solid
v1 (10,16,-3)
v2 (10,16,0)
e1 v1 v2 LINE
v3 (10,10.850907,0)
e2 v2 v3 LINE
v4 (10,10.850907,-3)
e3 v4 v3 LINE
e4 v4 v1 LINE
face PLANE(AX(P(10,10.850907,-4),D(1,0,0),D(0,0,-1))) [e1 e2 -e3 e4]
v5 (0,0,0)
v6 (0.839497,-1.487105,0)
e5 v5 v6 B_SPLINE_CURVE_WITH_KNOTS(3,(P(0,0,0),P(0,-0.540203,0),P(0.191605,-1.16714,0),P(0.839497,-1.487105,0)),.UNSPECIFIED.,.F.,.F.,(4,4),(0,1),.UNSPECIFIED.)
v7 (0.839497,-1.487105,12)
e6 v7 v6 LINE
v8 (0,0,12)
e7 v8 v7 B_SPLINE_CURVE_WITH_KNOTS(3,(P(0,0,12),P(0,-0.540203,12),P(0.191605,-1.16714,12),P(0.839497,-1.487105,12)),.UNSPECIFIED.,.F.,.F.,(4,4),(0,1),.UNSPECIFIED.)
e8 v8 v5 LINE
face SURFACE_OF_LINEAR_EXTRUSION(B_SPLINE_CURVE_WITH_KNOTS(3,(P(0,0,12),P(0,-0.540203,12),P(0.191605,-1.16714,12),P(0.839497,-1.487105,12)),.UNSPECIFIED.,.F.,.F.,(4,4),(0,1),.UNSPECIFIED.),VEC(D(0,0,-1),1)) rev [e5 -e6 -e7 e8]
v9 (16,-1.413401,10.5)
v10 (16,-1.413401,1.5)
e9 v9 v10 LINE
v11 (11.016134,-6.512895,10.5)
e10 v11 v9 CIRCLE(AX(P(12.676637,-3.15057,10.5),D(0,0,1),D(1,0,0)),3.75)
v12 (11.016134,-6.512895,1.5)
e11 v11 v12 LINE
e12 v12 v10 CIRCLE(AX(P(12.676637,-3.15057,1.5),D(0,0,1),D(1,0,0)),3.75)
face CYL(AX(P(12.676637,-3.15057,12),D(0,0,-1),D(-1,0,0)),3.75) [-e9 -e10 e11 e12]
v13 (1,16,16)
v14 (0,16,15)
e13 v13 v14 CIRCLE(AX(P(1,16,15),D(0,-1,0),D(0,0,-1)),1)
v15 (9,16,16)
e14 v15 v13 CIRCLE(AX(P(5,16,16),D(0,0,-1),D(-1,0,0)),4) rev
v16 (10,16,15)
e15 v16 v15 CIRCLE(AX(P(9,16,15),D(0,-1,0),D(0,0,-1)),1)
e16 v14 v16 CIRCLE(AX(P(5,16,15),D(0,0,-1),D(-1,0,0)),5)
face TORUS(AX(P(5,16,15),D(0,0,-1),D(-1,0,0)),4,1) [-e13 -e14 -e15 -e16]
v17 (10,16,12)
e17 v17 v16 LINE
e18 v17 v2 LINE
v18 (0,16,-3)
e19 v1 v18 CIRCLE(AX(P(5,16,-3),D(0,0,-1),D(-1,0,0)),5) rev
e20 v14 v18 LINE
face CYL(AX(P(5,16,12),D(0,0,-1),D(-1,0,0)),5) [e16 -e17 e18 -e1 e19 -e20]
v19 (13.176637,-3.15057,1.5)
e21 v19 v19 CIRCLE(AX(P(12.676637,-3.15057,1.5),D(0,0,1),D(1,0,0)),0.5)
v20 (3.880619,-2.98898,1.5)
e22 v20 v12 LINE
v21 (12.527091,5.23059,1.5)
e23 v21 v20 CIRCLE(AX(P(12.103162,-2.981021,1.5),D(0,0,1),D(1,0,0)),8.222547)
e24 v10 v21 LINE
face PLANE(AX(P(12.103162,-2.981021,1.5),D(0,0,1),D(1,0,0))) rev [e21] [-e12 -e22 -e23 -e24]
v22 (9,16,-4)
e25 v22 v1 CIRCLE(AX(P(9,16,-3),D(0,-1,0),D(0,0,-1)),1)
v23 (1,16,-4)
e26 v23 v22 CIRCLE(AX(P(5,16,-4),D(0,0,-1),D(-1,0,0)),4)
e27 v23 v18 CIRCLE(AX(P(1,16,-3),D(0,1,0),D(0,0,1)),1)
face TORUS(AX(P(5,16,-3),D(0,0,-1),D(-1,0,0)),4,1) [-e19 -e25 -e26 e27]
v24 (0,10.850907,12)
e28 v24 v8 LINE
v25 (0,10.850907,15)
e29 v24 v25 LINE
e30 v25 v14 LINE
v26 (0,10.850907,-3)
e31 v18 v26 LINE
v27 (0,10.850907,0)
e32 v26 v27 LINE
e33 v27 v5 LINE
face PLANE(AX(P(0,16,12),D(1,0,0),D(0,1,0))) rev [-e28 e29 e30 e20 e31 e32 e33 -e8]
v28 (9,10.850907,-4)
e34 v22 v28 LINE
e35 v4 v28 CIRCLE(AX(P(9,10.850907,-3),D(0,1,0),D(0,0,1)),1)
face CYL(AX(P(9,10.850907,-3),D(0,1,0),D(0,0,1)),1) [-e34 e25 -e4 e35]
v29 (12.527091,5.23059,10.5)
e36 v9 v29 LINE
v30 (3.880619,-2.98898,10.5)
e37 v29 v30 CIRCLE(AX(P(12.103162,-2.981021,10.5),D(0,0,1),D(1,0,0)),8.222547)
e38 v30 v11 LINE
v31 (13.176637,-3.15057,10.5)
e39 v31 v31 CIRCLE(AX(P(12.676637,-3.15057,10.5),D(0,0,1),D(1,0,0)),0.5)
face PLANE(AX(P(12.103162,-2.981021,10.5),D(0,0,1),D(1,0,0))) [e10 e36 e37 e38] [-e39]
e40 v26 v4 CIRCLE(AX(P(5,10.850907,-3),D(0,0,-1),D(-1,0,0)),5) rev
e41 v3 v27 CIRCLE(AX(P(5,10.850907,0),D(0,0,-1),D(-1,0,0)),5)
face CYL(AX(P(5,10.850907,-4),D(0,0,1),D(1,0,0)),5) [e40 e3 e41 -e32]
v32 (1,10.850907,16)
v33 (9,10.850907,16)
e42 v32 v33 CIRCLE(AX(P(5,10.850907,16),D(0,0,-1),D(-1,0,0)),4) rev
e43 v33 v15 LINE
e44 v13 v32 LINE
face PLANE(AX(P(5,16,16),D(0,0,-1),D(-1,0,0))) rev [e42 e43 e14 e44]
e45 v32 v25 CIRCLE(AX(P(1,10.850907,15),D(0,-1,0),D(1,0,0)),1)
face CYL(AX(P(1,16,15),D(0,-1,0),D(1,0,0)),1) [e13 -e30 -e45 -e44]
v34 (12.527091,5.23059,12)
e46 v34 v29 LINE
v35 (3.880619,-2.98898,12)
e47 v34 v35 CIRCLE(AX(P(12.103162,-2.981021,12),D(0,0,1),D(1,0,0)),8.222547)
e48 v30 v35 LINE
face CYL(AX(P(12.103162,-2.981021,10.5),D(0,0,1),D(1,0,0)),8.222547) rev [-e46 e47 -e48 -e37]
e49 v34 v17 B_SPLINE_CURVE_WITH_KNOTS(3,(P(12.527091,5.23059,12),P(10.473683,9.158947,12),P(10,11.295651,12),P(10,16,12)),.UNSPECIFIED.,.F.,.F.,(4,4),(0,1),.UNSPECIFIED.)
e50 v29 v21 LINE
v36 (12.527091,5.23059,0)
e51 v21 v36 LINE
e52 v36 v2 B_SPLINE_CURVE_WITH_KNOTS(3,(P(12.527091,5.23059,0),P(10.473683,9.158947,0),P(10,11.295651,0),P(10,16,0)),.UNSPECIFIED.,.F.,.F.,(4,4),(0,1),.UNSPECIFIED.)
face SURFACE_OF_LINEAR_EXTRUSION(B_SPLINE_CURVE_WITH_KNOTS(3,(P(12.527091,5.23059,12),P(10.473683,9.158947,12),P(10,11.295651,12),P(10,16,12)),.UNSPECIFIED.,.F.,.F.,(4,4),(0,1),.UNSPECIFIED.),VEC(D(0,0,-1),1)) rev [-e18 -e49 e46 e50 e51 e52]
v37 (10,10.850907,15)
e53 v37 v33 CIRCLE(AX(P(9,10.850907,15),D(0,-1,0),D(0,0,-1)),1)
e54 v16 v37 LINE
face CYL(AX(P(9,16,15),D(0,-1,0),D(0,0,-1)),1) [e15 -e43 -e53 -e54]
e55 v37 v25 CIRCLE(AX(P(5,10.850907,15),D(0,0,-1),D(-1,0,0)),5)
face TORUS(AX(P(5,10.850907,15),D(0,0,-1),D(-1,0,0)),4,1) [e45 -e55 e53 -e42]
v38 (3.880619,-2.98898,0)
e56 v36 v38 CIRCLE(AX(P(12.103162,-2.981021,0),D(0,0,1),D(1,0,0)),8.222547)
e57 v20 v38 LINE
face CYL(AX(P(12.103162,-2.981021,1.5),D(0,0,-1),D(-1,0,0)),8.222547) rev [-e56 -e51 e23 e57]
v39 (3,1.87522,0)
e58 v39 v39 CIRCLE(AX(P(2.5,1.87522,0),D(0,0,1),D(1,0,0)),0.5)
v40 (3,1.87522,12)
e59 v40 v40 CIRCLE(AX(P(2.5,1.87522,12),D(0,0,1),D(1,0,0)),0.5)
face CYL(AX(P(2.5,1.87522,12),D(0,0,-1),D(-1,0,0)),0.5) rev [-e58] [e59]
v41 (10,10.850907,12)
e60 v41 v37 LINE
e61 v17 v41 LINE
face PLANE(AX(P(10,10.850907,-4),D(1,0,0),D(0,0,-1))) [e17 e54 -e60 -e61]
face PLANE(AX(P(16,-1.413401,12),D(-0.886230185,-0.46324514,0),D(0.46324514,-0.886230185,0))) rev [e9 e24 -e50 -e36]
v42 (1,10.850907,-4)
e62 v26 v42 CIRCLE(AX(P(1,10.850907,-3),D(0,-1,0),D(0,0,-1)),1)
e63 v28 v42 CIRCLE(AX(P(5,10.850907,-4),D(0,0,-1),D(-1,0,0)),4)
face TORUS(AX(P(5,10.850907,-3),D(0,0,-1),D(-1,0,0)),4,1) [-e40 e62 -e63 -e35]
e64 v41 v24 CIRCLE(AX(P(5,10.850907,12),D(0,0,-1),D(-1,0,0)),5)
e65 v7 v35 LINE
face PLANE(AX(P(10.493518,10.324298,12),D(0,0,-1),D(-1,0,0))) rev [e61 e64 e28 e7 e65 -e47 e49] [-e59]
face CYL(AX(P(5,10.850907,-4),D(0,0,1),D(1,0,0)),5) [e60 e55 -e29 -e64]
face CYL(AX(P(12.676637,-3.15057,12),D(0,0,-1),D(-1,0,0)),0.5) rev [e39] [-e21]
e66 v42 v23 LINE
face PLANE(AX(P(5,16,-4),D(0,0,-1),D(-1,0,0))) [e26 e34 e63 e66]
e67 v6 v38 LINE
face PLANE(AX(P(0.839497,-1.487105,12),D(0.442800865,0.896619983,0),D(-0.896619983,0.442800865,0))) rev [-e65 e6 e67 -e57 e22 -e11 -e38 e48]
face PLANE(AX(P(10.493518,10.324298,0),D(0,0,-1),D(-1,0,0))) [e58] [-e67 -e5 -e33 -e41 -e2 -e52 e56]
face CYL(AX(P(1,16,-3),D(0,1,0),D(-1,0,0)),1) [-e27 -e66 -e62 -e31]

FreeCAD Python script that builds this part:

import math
import FreeCAD as App
import Part
import Sketcher
from FreeCAD import Vector


def edges_at(feature, points):
    """Names of the edges that pass closest to the given points."""
    edges = feature.Shape.Edges
    near = lambda p: min(range(len(edges)), key=lambda i: edges[i].distToShape(Part.Vertex(*p))[0])
    return sorted({f"Edge{near(p) + 1}" for p in points})

doc = App.newDocument("Part")
params = doc.addObject("Spreadsheet::Sheet", "Params")
for row, (alias, value) in enumerate([
    ("sketch1_diameter", "1 mm"),
    ("sketch1_height", "16 mm"),
    ("sketch1_radius", "3.75 mm"),
    ("pad1_length", "12 mm"),
    ("sketch2_radius", "3.75 mm"),
    ("pocket1_length", "1.5 mm"),
    ("sketch3_radius", "3.75 mm"),
    ("pocket2_length", "1.5 mm"),
    ("sketch4_radius", "5 mm"),
    ("pad2_length", "20 mm"),
    ("fillet_radius", "1 mm"),
], start=1):
    params.set(f"A{row}", alias)
    params.set(f"B{row}", "=" + value)
    params.setAlias(f"B{row}", alias)

body = doc.addObject("PartDesign::Body", "Body")

# Sketch on XY plane
sketch1 = body.newObject("Sketcher::SketchObject", "Sketch")
sketch1.AttachmentSupport = (doc.getObject("XY_Plane"), [""])
sketch1.MapMode = "FlatFace"
sketch1.addGeometry([
    Part.LineSegment(Vector(0.839497, -1.487105, 0), Vector(11.016134, -6.512895, 0)),  # 0
    Part.ArcOfCircle(Part.Circle(Vector(12.676637, -3.15057, 0), Vector(0, 0, 1), 3.75), math.radians(-116.282724), math.radians(27.596709)),  # 1
    Part.LineSegment(Vector(16, -1.413401, 0), Vector(12.527091, 5.23059, 0)),  # 2
    Part.BSplineCurve([Vector(10, 16, 0), Vector(10, 11.295651, 0), Vector(10.473683, 9.158947, 0), Vector(12.527091, 5.23059, 0)], [4, 4], [0, 1], False, 3, [1, 1, 1, 1], False),  # 3
    Part.ArcOfCircle(Part.Circle(Vector(5, 16, 0), Vector(0, 0, 1), 5), math.radians(0), math.radians(180)),  # 4
    Part.LineSegment(Vector(0, 16, 0), Vector(0, 0, 0)),  # 5
    Part.BSplineCurve([Vector(0, 0, 0), Vector(0, -0.540203, 0), Vector(0.191605, -1.16714, 0), Vector(0.839497, -1.487105, 0)], [4, 4], [0, 1], False, 3, [1, 1, 1, 1], False),  # 6
    Part.Circle(Vector(12.676637, -3.15057, 0), Vector(0, 0, 1), 0.5),  # 7
    Part.Circle(Vector(2.5, 1.87522, 0), Vector(0, 0, 1), 0.5),  # 8
], False)
sketch1.addConstraint([
    Sketcher.Constraint("Block", 3),
    Sketcher.Constraint("Block", 6),
    Sketcher.Constraint("Tangent", 0, 2, 1, 1),
    Sketcher.Constraint("Tangent", 1, 2, 2, 1),
    Sketcher.Constraint("Coincident", 2, 2, 3, 2),
    Sketcher.Constraint("Coincident", 3, 1, 4, 1),
    Sketcher.Constraint("Tangent", 4, 2, 5, 1),
    Sketcher.Constraint("Coincident", 5, 2, 6, 1),
    Sketcher.Constraint("Coincident", 6, 2, 0, 1),
    Sketcher.Constraint("Vertical", 5),
    Sketcher.Constraint("Coincident", 7, 3, 1, 3),
    Sketcher.Constraint("Equal", 7, 8),
    Sketcher.Constraint("Diameter", 7, 1.0),
    Sketcher.Constraint("DistanceY", 5, 2, 5, 1, 16.0),
    Sketcher.Constraint("Radius", 1, 3.75),
    Sketcher.Constraint("DistanceX", -1, 1, 1, 2, 16.0),
    Sketcher.Constraint("DistanceX", -1, 1, 8, 3, 2.5),
    Sketcher.Constraint("DistanceY", 1, 2, -1, 1, 1.413401),
    Sketcher.Constraint("DistanceY", -1, 1, 8, 3, 1.87522),
])
sketch1.setExpression("Constraints[12]", "Params.sketch1_diameter")
sketch1.setExpression("Constraints[13]", "Params.sketch1_height")
sketch1.setExpression("Constraints[14]", "Params.sketch1_radius")
pad1 = body.newObject("PartDesign::Pad", "Pad")
pad1.Profile = sketch1
pad1.setExpression("Length", "Params.pad1_length")

# Sketch on XY plane
sketch2 = body.newObject("Sketcher::SketchObject", "Sketch001")
sketch2.AttachmentSupport = (doc.getObject("XY_Plane"), [""])
sketch2.MapMode = "FlatFace"
sketch2.AttachmentOffset = App.Placement(Vector(0, 0, 10.5), App.Rotation())
sketch2.addGeometry([
    Part.LineSegment(Vector(3.9, -3, 0), Vector(11, -6.5, 0)),
    Part.ArcOfCircle(Part.Circle(Vector(12.7, -3.2, 0), Vector(0, 0, 1), 3.8), math.radians(-116), math.radians(28)),
    Part.LineSegment(Vector(16, -1.4, 0), Vector(12.5, 5.2, 0)),
    Part.ArcOfCircle(Part.Circle(Vector(12.1, -3, 0), Vector(0, 0, 1), 8.2), math.radians(87), math.radians(180)),
], False)
sketch2.addConstraint([
    Sketcher.Constraint("Tangent", 0, 2, 1, 1),
    Sketcher.Constraint("Tangent", 1, 2, 2, 1),
    Sketcher.Constraint("Coincident", 2, 2, 3, 1),
    Sketcher.Constraint("Coincident", 3, 2, 0, 1),
    Sketcher.Constraint("Radius", 1, 3.75),
    Sketcher.Constraint("DistanceX", -1, 1, 1, 2, 16.0),
    Sketcher.Constraint("Radius", 3, 8.222547),
    Sketcher.Constraint("DistanceY", 1, 2, -1, 1, 1.413401),
    Sketcher.Constraint("DistanceY", 1, 3, -1, 1, 3.15057),
    Sketcher.Constraint("DistanceX", -1, 1, 3, 3, 12.103162),
    Sketcher.Constraint("DistanceY", 3, 3, -1, 1, 2.981021),
    Sketcher.Constraint("DistanceY", 3, 2, -1, 1, 2.98898),
])
sketch2.setExpression("Constraints[4]", "Params.sketch2_radius")
pocket1 = body.newObject("PartDesign::Pocket", "Pocket")
pocket1.Profile = sketch2
pocket1.setExpression("Length", "Params.pocket1_length")
pocket1.Reversed = True

# Sketch on XY plane
sketch3 = body.newObject("Sketcher::SketchObject", "Sketch002")
sketch3.AttachmentSupport = (doc.getObject("XY_Plane"), [""])
sketch3.MapMode = "FlatFace"
sketch3.addGeometry([
    Part.LineSegment(Vector(3.9, -3, 0), Vector(11, -6.5, 0)),
    Part.ArcOfCircle(Part.Circle(Vector(12.7, -3.2, 0), Vector(0, 0, 1), 3.8), math.radians(-116), math.radians(28)),
    Part.LineSegment(Vector(16, -1.4, 0), Vector(12.5, 5.2, 0)),
    Part.ArcOfCircle(Part.Circle(Vector(12.1, -3, 0), Vector(0, 0, 1), 8.2), math.radians(87), math.radians(180)),
], False)
sketch3.addConstraint([
    Sketcher.Constraint("Tangent", 0, 2, 1, 1),
    Sketcher.Constraint("Tangent", 1, 2, 2, 1),
    Sketcher.Constraint("Coincident", 2, 2, 3, 1),
    Sketcher.Constraint("Coincident", 3, 2, 0, 1),
    Sketcher.Constraint("Radius", 1, 3.75),
    Sketcher.Constraint("DistanceX", -1, 1, 1, 2, 16.0),
    Sketcher.Constraint("Radius", 3, 8.222547),
    Sketcher.Constraint("DistanceY", 1, 2, -1, 1, 1.413401),
    Sketcher.Constraint("DistanceY", 1, 3, -1, 1, 3.15057),
    Sketcher.Constraint("DistanceX", -1, 1, 3, 3, 12.103162),
    Sketcher.Constraint("DistanceY", 3, 3, -1, 1, 2.981021),
    Sketcher.Constraint("DistanceY", 3, 2, -1, 1, 2.98898),
])
sketch3.setExpression("Constraints[4]", "Params.sketch3_radius")
pocket2 = body.newObject("PartDesign::Pocket", "Pocket001")
pocket2.Profile = sketch3
pocket2.setExpression("Length", "Params.pocket2_length")
pocket2.Reversed = True

# Sketch on XY plane
sketch4 = body.newObject("Sketcher::SketchObject", "Sketch003")
sketch4.AttachmentSupport = (doc.getObject("XY_Plane"), [""])
sketch4.MapMode = "FlatFace"
sketch4.AttachmentOffset = App.Placement(Vector(0, 0, -4), App.Rotation())
sketch4.addGeometry([
    Part.LineSegment(Vector(0, 16, 0), Vector(0, 11, 0)),
    Part.ArcOfCircle(Part.Circle(Vector(5, 11, 0), Vector(0, 0, 1), 5), math.radians(180), math.radians(360)),
    Part.LineSegment(Vector(10, 11, 0), Vector(10, 16, 0)),
    Part.ArcOfCircle(Part.Circle(Vector(5, 16, 0), Vector(0, 0, 1), 5), math.radians(0), math.radians(180)),
], False)
sketch4.addConstraint([
    Sketcher.Constraint("Tangent", 0, 2, 1, 1),
    Sketcher.Constraint("Tangent", 1, 2, 2, 1),
    Sketcher.Constraint("Tangent", 2, 2, 3, 1),
    Sketcher.Constraint("Tangent", 3, 2, 0, 1),
    Sketcher.Constraint("Vertical", 0),
    Sketcher.Constraint("Vertical", 2),
    Sketcher.Constraint("PointOnObject", 0, 2, -2),
    Sketcher.Constraint("Radius", 1, 5.0),
    Sketcher.Constraint("DistanceY", -1, 1, 3, 3, 16.0),
    Sketcher.Constraint("DistanceY", 0, 2, 0, 1, 5.149093),
])
sketch4.setExpression("Constraints[7]", "Params.sketch4_radius")
pad2 = body.newObject("PartDesign::Pad", "Pad001")
pad2.Profile = sketch4
pad2.setExpression("Length", "Params.pad2_length")
doc.recompute()

fillet = body.newObject("PartDesign::Fillet", "Fillet")
fillet.Base = (pad2, edges_at(pad2, [
    (5, 21, -4),
    (10, 13.425, -4),
    (5, 5.851, -4),
    (0, 13.425, -4),
    (5, 21, 16),
    (0, 13.425, 16),
    (5, 5.851, 16),
    (10, 13.425, 16),
]))
fillet.setExpression("Radius", "Params.fillet_radius")

doc.recompute()
